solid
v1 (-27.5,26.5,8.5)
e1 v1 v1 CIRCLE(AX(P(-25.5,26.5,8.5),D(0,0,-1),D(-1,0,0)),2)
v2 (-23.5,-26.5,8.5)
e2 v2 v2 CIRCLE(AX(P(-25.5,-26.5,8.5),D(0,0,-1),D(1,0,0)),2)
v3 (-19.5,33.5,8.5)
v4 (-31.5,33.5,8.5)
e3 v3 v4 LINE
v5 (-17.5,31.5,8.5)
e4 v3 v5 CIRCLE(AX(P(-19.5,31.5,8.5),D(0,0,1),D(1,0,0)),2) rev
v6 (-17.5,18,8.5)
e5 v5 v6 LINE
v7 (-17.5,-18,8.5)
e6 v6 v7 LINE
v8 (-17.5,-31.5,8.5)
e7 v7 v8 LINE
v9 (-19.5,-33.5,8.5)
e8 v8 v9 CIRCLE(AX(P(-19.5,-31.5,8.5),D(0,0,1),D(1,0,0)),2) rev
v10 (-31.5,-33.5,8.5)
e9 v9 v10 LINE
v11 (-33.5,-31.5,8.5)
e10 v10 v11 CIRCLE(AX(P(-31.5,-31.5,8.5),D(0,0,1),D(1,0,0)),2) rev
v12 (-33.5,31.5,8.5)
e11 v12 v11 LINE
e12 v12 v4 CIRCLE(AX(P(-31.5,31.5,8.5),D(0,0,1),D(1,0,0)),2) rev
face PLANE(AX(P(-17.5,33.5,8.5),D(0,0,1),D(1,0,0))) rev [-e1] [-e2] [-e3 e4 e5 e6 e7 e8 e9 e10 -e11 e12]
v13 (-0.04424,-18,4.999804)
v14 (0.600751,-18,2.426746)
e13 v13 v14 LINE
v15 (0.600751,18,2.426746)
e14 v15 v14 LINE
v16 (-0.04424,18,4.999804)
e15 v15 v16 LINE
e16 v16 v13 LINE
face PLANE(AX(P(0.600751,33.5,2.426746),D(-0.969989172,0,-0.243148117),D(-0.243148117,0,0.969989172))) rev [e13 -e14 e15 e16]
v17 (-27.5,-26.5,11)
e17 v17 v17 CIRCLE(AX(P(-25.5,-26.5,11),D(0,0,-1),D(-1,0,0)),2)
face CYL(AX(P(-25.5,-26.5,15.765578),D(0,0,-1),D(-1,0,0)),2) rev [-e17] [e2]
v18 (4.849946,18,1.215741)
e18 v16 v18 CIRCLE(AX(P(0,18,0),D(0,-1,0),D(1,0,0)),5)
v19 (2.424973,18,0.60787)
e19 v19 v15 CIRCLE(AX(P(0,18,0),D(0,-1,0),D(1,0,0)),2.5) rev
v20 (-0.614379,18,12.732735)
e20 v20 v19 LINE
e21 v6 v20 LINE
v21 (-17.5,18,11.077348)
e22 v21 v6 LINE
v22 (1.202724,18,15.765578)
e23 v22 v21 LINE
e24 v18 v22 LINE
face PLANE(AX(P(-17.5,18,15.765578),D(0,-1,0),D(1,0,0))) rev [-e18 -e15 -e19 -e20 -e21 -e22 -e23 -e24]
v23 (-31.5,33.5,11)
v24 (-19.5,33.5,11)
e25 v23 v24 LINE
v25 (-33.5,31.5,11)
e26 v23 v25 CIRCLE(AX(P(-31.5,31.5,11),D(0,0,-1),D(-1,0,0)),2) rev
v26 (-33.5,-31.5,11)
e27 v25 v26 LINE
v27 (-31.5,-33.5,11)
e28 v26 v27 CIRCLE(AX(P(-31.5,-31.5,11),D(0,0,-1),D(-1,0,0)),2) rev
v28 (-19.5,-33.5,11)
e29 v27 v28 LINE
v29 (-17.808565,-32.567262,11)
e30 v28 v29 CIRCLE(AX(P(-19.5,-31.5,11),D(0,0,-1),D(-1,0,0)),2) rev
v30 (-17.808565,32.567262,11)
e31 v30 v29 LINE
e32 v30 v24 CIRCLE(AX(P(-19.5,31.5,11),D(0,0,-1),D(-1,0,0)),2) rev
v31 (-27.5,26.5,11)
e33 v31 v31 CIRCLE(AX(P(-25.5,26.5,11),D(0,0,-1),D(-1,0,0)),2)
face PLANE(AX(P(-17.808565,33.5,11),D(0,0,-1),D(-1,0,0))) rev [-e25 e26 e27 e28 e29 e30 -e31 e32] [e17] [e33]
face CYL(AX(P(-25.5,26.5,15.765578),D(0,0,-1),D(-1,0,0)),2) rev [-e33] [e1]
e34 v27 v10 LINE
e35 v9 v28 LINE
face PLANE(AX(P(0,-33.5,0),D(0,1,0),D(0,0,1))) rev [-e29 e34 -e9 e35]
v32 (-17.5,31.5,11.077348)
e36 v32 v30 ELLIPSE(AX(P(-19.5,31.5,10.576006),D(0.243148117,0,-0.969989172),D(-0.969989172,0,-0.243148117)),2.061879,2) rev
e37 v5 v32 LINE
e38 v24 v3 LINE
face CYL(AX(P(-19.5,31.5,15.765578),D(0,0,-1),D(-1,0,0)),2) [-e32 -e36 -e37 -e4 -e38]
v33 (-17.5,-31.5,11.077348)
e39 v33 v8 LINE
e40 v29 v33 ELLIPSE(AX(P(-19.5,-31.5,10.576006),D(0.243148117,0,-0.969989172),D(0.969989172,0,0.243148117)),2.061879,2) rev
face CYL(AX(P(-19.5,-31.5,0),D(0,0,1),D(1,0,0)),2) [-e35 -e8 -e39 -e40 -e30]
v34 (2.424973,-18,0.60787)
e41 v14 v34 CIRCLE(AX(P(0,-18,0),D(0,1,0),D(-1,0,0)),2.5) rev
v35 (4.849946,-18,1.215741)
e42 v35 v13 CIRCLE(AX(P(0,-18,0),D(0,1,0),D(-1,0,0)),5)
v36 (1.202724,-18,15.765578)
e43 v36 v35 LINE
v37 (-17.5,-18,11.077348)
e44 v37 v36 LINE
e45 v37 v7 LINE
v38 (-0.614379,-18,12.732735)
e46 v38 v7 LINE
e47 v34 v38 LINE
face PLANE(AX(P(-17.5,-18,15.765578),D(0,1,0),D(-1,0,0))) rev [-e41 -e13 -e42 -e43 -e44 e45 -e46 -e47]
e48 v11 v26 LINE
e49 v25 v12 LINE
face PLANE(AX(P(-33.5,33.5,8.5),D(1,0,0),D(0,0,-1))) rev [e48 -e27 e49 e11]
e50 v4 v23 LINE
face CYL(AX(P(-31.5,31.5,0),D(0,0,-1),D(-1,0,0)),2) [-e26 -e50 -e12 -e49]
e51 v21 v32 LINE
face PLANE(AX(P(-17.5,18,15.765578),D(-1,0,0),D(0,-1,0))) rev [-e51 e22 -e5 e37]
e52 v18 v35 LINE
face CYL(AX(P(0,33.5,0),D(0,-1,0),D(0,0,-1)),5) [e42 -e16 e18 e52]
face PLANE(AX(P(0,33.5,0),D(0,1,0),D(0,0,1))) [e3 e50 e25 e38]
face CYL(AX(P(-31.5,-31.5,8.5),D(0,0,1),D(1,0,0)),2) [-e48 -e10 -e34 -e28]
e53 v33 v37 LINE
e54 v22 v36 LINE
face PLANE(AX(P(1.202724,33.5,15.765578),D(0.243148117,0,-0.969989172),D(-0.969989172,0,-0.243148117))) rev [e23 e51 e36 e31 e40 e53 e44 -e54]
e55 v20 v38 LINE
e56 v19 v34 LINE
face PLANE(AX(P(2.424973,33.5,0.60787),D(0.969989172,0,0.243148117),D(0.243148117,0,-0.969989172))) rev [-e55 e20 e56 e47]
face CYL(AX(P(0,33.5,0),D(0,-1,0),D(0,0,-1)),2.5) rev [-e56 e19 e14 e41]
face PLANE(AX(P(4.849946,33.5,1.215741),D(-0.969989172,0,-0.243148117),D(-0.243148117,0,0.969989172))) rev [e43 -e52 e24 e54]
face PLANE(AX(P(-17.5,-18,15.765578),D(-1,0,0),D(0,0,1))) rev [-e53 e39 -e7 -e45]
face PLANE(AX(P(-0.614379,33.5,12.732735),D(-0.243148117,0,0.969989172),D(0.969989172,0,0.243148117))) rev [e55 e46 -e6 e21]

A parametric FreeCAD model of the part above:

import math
import FreeCAD as App
import Part
import Sketcher

V = App.Vector


def edges_at(feature, points):
    """Names of the edges that pass closest to the given points."""
    edges = feature.Shape.Edges
    near = lambda p: min(range(len(edges)), key=lambda i: edges[i].distToShape(Part.Vertex(*p))[0])
    return sorted({f"Edge{near(p) + 1}" for p in points})

doc = App.newDocument("Part")
body = doc.addObject("PartDesign::Body", "Body")

# Sketch on XZ plane
sketch1 = body.newObject("Sketcher::SketchObject", "Sketch")
sketch1.AttachmentSupport = (doc.getObject("XZ_Plane"), [""])
sketch1.MapMode = "FlatFace"
sketch1.addGeometry(Part.LineSegment(V(1.2, 15.8, 0), V(4.8, 1.2, 0)), False)
sketch1.addGeometry(Part.ArcOfCircle(Part.Circle(V(0, 0, 0), V(0, 0, 1), 5), math.radians(91), math.radians(374)), False)
sketch1.addGeometry(Part.LineSegment(V(0, 5, 0), V(0.6, 2.4, 0)), False)
sketch1.addGeometry(Part.ArcOfCircle(Part.Circle(V(0, 0, 0), V(0, 0, 1), 2.5), math.radians(76), math.radians(374)), False)
sketch1.addGeometry(Part.LineSegment(V(2.4, 0.6, 0), V(-0.6, 12.7, 0)), False)
sketch1.addGeometry(Part.LineSegment(V(-0.6, 12.7, 0), V(-17.5, 8.5, 0)), False)
sketch1.addGeometry(Part.LineSegment(V(-17.5, 8.5, 0), V(-33.5, 8.5, 0)), False)
sketch1.addGeometry(Part.LineSegment(V(-33.5, 8.5, 0), V(-33.5, 11, 0)), False)
sketch1.addGeometry(Part.LineSegment(V(-33.5, 11, 0), V(-17.8, 11, 0)), False)
sketch1.addGeometry(Part.LineSegment(V(-17.8, 11, 0), V(1.2, 15.8, 0)), False)
sketch1.addConstraint(Sketcher.Constraint("Tangent", 0, 2, 1, 2))
sketch1.addConstraint(Sketcher.Constraint("Coincident", 1, 1, 2, 1))
sketch1.addConstraint(Sketcher.Constraint("Coincident", 2, 2, 3, 1))
sketch1.addConstraint(Sketcher.Constraint("Tangent", 3, 2, 4, 1))
sketch1.addConstraint(Sketcher.Constraint("Coincident", 4, 2, 5, 1))
sketch1.addConstraint(Sketcher.Constraint("Coincident", 5, 2, 6, 1))
sketch1.addConstraint(Sketcher.Constraint("Coincident", 6, 2, 7, 1))
sketch1.addConstraint(Sketcher.Constraint("Coincident", 7, 2, 8, 1))
sketch1.addConstraint(Sketcher.Constraint("Coincident", 8, 2, 9, 1))
sketch1.addConstraint(Sketcher.Constraint("Coincident", 9, 2, 0, 1))
sketch1.addConstraint(Sketcher.Constraint("Horizontal", 6))
sketch1.addConstraint(Sketcher.Constraint("Vertical", 7))
sketch1.addConstraint(Sketcher.Constraint("Horizontal", 8))
sketch1.addConstraint(Sketcher.Constraint("Coincident", 1, 3, -1, 1))
sketch1.addConstraint(Sketcher.Constraint("Coincident", 3, 3, -1, 1))
sketch1.addConstraint(Sketcher.Constraint("Parallel", 0, 2))
sketch1.addConstraint(Sketcher.Constraint("Parallel", 2, 4))
sketch1.addConstraint(Sketcher.Constraint("Perpendicular", 4, 5))
sketch1.addConstraint(Sketcher.Constraint("Parallel", 5, 9))
sketch1.addConstraint(Sketcher.Constraint("Radius", 1, 5.0))
sketch1.addConstraint(Sketcher.Constraint("Radius", 3, 2.5))
sketch1.addConstraint(Sketcher.Constraint("DistanceX", 6, 2, 6, 1, 16.0))
sketch1.addConstraint(Sketcher.Constraint("Distance", 0, 15.0))
sketch1.addConstraint(Sketcher.Constraint("DistanceY", 7, 1, 7, 2, 2.5))
sketch1.addConstraint(Sketcher.Constraint("DistanceY", -1, 1, 7, 2, 11.0))
sketch1.addConstraint(Sketcher.Constraint("Distance", 4, 12.5))
sketch1.addConstraint(Sketcher.Constraint("DistanceX", 5, 2, -1, 1, 17.5))
sketch1.addConstraint(Sketcher.Constraint("DistanceX", 1, 1, -1, 1, 0.04424))
pad1 = body.newObject("PartDesign::Pad", "Pad")
pad1.Profile = sketch1
pad1.Length = 67
pad1.Midplane = True

# Sketch on XY plane
sketch2 = body.newObject("Sketcher::SketchObject", "Sketch001")
sketch2.AttachmentSupport = (doc.getObject("XY_Plane"), [""])
sketch2.MapMode = "FlatFace"
sketch2.AttachmentOffset = App.Placement(V(0, 0, 8.5), App.Rotation())
sketch2.addGeometry(Part.LineSegment(V(20, 51, 0), V(20, 18, 0)), False)
sketch2.addGeometry(Part.LineSegment(V(20, 18, 0), V(-18, 18, 0)), False)
sketch2.addGeometry(Part.LineSegment(V(-18, 18, 0), V(-18, 51, 0)), False)
sketch2.addGeometry(Part.LineSegment(V(-18, 51, 0), V(20, 51, 0)), False)
sketch2.addGeometry(Part.LineSegment(V(20, -18, 0), V(20, -51, 0)), False)
sketch2.addGeometry(Part.LineSegment(V(20, -51, 0), V(-18, -51, 0)), False)
sketch2.addGeometry(Part.LineSegment(V(-18, -51, 0), V(-18, -18, 0)), False)
sketch2.addGeometry(Part.LineSegment(V(-18, -18, 0), V(20, -18, 0)), False)
sketch2.addConstraint(Sketcher.Constraint("Coincident", 0, 2, 1, 1))
sketch2.addConstraint(Sketcher.Constraint("Coincident", 1, 2, 2, 1))
sketch2.addConstraint(Sketcher.Constraint("Coincident", 2, 2, 3, 1))
sketch2.addConstraint(Sketcher.Constraint("Coincident", 3, 2, 0, 1))
sketch2.addConstraint(Sketcher.Constraint("Coincident", 4, 2, 5, 1))
sketch2.addConstraint(Sketcher.Constraint("Coincident", 5, 2, 6, 1))
sketch2.addConstraint(Sketcher.Constraint("Coincident", 6, 2, 7, 1))
sketch2.addConstraint(Sketcher.Constraint("Coincident", 7, 2, 4, 1))
sketch2.addConstraint(Sketcher.Constraint("Vertical", 0))
sketch2.addConstraint(Sketcher.Constraint("Horizontal", 1))
sketch2.addConstraint(Sketcher.Constraint("Vertical", 2))
sketch2.addConstraint(Sketcher.Constraint("Horizontal", 3))
sketch2.addConstraint(Sketcher.Constraint("Vertical", 4))
sketch2.addConstraint(Sketcher.Constraint("Horizontal", 5))
sketch2.addConstraint(Sketcher.Constraint("Vertical", 6))
sketch2.addConstraint(Sketcher.Constraint("Horizontal", 7))
sketch2.addConstraint(Sketcher.Constraint("Symmetric", 3, 2, 4, 2, -1))
sketch2.addConstraint(Sketcher.Constraint("Symmetric", 1, 2, 6, 2, -1))
sketch2.addConstraint(Sketcher.Constraint("DistanceY", -1, 1, 0, 2, 18.0))
sketch2.addConstraint(Sketcher.Constraint("DistanceX", 1, 2, -1, 1, 17.5))
sketch2.addConstraint(Sketcher.Constraint("DistanceX", 1, 2, 1, 1, 37.712945))
sketch2.addConstraint(Sketcher.Constraint("DistanceY", 0, 2, 0, 1, 32.806464))
pocket1 = body.newObject("PartDesign::Pocket", "Pocket")
pocket1.Profile = sketch2
pocket1.Type = "ThroughAll"
pocket1.Midplane = True

# Sketch on XY plane
sketch3 = body.newObject("Sketcher::SketchObject", "Sketch002")
sketch3.AttachmentSupport = (doc.getObject("XY_Plane"), [""])
sketch3.MapMode = "FlatFace"
sketch3.AttachmentOffset = App.Placement(V(0, 0, 8.5), App.Rotation())
sketch3.addGeometry(Part.Circle(V(-25.5, 26.5, 0), V(0, 0, 1), 2), False)
sketch3.addGeometry(Part.Circle(V(-25.5, -26.5, 0), V(0, 0, 1), 2), False)
sketch3.addConstraint(Sketcher.Constraint("Equal", 0, 1))
sketch3.addConstraint(Sketcher.Constraint("Symmetric", 0, 3, 1, 3, -1))
sketch3.addConstraint(Sketcher.Constraint("Diameter", 0, 4.0))
sketch3.addConstraint(Sketcher.Constraint("DistanceY", 1, 3, 0, 3, 53.0))
sketch3.addConstraint(Sketcher.Constraint("DistanceX", 0, 3, -1, 1, 25.5))
pocket2 = body.newObject("PartDesign::Pocket", "Pocket001")
pocket2.Profile = sketch3
pocket2.Type = "ThroughAll"
pocket2.Reversed = True
doc.recompute()

fillet = body.newObject("PartDesign::Fillet", "Fillet")
fillet.Base = (pocket2, edges_at(pocket2, [
    (-17.5, -33.5, 9.789),
    (-33.5, -33.5, 9.75),
    (-33.5, 33.5, 9.75),
    (-17.5, 33.5, 9.789),
]))
fillet.Radius = 2

doc.recompute()
